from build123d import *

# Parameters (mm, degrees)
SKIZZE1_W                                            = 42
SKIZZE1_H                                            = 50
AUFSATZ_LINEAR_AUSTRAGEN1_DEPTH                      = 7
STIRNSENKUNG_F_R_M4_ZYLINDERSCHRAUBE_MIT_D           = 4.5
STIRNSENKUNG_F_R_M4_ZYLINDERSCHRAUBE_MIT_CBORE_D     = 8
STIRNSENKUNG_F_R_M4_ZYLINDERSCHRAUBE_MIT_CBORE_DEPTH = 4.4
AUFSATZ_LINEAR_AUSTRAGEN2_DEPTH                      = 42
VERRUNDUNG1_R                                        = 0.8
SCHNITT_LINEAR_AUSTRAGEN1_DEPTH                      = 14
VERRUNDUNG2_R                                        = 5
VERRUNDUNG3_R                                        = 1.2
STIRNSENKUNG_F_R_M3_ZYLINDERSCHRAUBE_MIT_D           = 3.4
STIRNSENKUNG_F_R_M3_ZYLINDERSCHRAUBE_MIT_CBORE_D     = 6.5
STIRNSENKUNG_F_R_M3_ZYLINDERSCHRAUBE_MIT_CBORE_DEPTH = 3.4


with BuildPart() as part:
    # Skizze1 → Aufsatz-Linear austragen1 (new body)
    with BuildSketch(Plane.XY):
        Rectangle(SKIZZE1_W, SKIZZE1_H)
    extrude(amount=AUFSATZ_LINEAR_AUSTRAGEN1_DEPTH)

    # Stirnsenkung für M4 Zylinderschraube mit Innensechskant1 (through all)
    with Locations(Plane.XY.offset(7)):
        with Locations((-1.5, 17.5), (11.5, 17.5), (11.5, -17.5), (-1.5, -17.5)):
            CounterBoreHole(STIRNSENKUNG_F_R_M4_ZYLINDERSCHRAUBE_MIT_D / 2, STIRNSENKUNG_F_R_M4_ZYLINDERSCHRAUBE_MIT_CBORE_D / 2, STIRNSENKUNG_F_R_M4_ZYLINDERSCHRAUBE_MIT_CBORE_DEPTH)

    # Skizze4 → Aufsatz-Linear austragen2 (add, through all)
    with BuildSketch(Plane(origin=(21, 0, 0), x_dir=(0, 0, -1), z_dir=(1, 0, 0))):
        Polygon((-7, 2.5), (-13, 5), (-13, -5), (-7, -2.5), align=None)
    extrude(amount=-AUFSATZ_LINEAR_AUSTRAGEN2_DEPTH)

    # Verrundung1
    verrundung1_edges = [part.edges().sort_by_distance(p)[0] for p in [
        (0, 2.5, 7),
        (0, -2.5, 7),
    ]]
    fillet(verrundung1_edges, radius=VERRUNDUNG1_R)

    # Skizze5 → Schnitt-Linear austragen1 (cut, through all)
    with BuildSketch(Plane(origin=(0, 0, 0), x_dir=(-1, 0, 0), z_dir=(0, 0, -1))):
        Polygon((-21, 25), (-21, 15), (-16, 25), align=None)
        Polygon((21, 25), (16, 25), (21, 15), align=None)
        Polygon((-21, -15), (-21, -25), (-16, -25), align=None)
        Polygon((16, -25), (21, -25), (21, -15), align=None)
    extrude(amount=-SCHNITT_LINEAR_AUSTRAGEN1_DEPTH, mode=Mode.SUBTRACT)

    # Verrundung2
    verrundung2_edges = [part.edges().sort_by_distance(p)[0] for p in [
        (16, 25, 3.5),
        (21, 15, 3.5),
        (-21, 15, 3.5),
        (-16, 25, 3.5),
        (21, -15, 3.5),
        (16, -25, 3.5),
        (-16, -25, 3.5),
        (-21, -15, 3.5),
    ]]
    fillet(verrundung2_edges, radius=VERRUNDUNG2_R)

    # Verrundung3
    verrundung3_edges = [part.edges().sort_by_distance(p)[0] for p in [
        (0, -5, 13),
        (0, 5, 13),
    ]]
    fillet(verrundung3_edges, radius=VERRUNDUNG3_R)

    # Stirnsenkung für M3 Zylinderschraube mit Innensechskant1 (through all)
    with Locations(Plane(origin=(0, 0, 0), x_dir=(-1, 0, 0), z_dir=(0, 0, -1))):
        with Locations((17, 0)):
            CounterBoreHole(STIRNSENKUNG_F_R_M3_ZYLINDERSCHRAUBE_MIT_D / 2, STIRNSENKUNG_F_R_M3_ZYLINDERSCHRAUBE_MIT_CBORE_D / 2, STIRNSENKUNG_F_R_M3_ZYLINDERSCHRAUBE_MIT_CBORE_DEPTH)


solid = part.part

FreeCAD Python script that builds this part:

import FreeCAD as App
import Part
import Sketcher
Q = App.Units.Quantity


def edges_at(feature, points):
    """Names of the edges that pass closest to the given points."""
    edges = feature.Shape.Edges
    near = lambda p: min(range(len(edges)), key=lambda i: edges[i].distToShape(Part.Vertex(*p))[0])
    return sorted({f"Edge{near(p) + 1}" for p in points})


def add_polygon(sketch, points):
    """Adds a closed chain of lines whose ends are joined by coincident constraints."""
    first, n = sketch.GeometryCount, len(points)
    for a, b in zip(points, points[1:] + points[:1]):
        sketch.addGeometry(Part.LineSegment(App.Vector(*a, 0), App.Vector(*b, 0)), False)
    for i in range(n):
        sketch.addConstraint(Sketcher.Constraint("Coincident", first + i, 2, first + (i + 1) % n, 1))

doc = App.newDocument("Part")
body = doc.addObject("PartDesign::Body", "Body")

sketch1 = body.newObject("Sketcher::SketchObject", "Sketch")
sketch1.AttachmentSupport = (doc.getObject("XY_Plane"), [""])
sketch1.MapMode = "FlatFace"
add_polygon(sketch1, [(-21, 25), (-21, -25), (21, -25), (21, 25)])
sketch1.addConstraint([
    Sketcher.Constraint("Vertical", 0),
    Sketcher.Constraint("Horizontal", 1),
    Sketcher.Constraint("Vertical", 2),
    Sketcher.Constraint("Horizontal", 3),
    Sketcher.Constraint("Symmetric", 0, 2, 2, 2, -1, 1),
    Sketcher.Constraint("DistanceX", 1, 1, 1, 2, Q("42 mm")),
    Sketcher.Constraint("DistanceY", 0, 2, 0, 1, Q("50 mm")),
])
pad1 = body.newObject("PartDesign::Pad", "Pad")
pad1.Profile = sketch1
pad1.Length = 7

sketch2 = body.newObject("Sketcher::SketchObject", "Sketch001")
sketch2.AttachmentSupport = (doc.getObject("XY_Plane"), [""])
sketch2.MapMode = "FlatFace"
sketch2.AttachmentOffset = App.Placement(App.Vector(0, 0, 7), App.Rotation())
sketch2.addGeometry([
    Part.Circle(App.Vector(-1.5, 17.5, 0), App.Vector(0, 0, 1), 2.2),
    Part.Circle(App.Vector(11.5, 17.5, 0), App.Vector(0, 0, 1), 2.2),
    Part.Circle(App.Vector(11.5, -17.5, 0), App.Vector(0, 0, 1), 2.2),
    Part.Circle(App.Vector(-1.5, -17.5, 0), App.Vector(0, 0, 1), 2.2),
], False)
sketch2.addConstraint([
    Sketcher.Constraint("Equal", 0, 1),
    Sketcher.Constraint("Equal", 1, 2),
    Sketcher.Constraint("Equal", 2, 3),
    Sketcher.Constraint("Symmetric", 1, 3, 2, 3, -1),
    Sketcher.Constraint("Symmetric", 0, 3, 3, 3, -1),
    Sketcher.Constraint("Horizontal", 0, 3, 1, 3),
    Sketcher.Constraint("Diameter", 0, Q("4.5 mm")),
    Sketcher.Constraint("DistanceX", 0, 3, 1, 3, Q("13 mm")),
    Sketcher.Constraint("DistanceY", 2, 3, 1, 3, Q("35 mm")),
    Sketcher.Constraint("DistanceX", 0, 3, -1, 1, Q("1.5 mm")),
])
doc.recompute()
hole = body.newObject("PartDesign::Hole", "Hole")
hole.Profile = sketch2
hole.ThreadType = "None"
hole.Diameter = 4.5
hole.DepthType = "ThroughAll"
hole.HoleCutType = "Counterbore"
hole.HoleCutDiameter = 8
hole.HoleCutDepth = 4.4

sketch3 = body.newObject("Sketcher::SketchObject", "Sketch002")
sketch3.AttachmentSupport = (doc.getObject("YZ_Plane"), [""])
sketch3.MapMode = "FlatFace"
sketch3.AttachmentOffset = App.Placement(App.Vector(0, 0, 21), App.Rotation())
add_polygon(sketch3, [(2, 7), (5, 13), (-5, 13), (-2, 7)])
sketch3.addConstraint([
    Sketcher.Constraint("Horizontal", 1),
    Sketcher.Constraint("Horizontal", 3),
    Sketcher.Constraint("Equal", 0, 2),
    Sketcher.Constraint("DistanceX", 1, 2, 1, 1, Q("10 mm")),
    Sketcher.Constraint("DistanceX", 3, 1, 3, 2, Q("5 mm")),
    Sketcher.Constraint("DistanceX", -1, 1, 0, 2, Q("5 mm")),
    Sketcher.Constraint("DistanceY", -1, 1, 0, 2, Q("13 mm")),
    Sketcher.Constraint("DistanceY", -1, 1, 2, 2, Q("7 mm")),
])
pad2 = body.newObject("PartDesign::Pad", "Pad001")
pad2.Profile = sketch3
pad2.Length = 42
pad2.Reversed = True
doc.recompute()

fillet = body.newObject("PartDesign::Fillet", "Fillet")
fillet.Base = (pad2, edges_at(pad2, [(0, 2.5, 7), (0, -2.5, 7)]))
fillet.Radius = 0.8

sketch4 = body.newObject("Sketcher::SketchObject", "Sketch003")
sketch4.AttachmentSupport = (doc.getObject("XY_Plane"), [""])
sketch4.MapMode = "FlatFace"
add_polygon(sketch4, [(21, 25), (21, 15), (16, 25)])
add_polygon(sketch4, [(-21, 25), (-16, 25), (-21, 15)])
add_polygon(sketch4, [(21, -15), (21, -25), (16, -25)])
add_polygon(sketch4, [(-16, -25), (-21, -25), (-21, -15)])
sketch4.addConstraint([
    Sketcher.Constraint("Vertical", 0),
    Sketcher.Constraint("Horizontal", 2),
    Sketcher.Constraint("Horizontal", 3),
    Sketcher.Constraint("Vertical", 5),
    Sketcher.Constraint("Vertical", 6),
    Sketcher.Constraint("Horizontal", 7),
    Sketcher.Constraint("Horizontal", 9),
    Sketcher.Constraint("Vertical", 10),
    Sketcher.Constraint("Symmetric", 5, 2, 6, 2, -1, 1),
    Sketcher.Constraint("Symmetric", 2, 2, 9, 2, -1, 1),
    Sketcher.Constraint("Symmetric", 1, 2, 3, 2, -2),
    Sketcher.Constraint("Symmetric", 0, 2, 4, 2, -2),
    Sketcher.Constraint("Parallel", 4, 8),
    Sketcher.Constraint("Parallel", 1, 11),
    Sketcher.Constraint("Horizontal", 8, 2, 10, 2),
    Sketcher.Constraint("Vertical", 1, 2, 7, 2),
    Sketcher.Constraint("DistanceX", 2, 1, 2, 2, Q("5 mm")),
    Sketcher.Constraint("DistanceY", 0, 2, 0, 1, Q("10 mm")),
    Sketcher.Constraint("DistanceX", -1, 1, 0, 2, Q("21 mm")),
    Sketcher.Constraint("DistanceY", -1, 1, 0, 2, Q("15 mm")),
])
pocket1 = body.newObject("PartDesign::Pocket", "Pocket")
pocket1.Profile = sketch4
pocket1.Type = "ThroughAll"
pocket1.Reversed = True
doc.recompute()

fillet2 = body.newObject("PartDesign::Fillet", "Fillet001")
fillet2.Base = (pocket1, edges_at(pocket1, [
    (16, 25, 3.5),
    (21, 15, 3.5),
    (-21, 15, 3.5),
    (-16, 25, 3.5),
    (21, -15, 3.5),
    (16, -25, 3.5),
    (-16, -25, 3.5),
    (-21, -15, 3.5),
]))
fillet2.Radius = 5
doc.recompute()

fillet3 = body.newObject("PartDesign::Fillet", "Fillet002")
fillet3.Base = (fillet2, edges_at(fillet2, [(0, -5, 13), (0, 5, 13)]))
fillet3.Radius = 1.2

sketch5 = body.newObject("Sketcher::SketchObject", "Sketch004")
sketch5.AttachmentSupport = (doc.getObject("XY_Plane"), [""])
sketch5.MapMode = "FlatFace"
sketch5.addGeometry(Part.Circle(App.Vector(-17, 0, 0), App.Vector(0, 0, 1), 1.7), False)
sketch5.addConstraint([
    Sketcher.Constraint("PointOnObject", 0, 3, -1),
    Sketcher.Constraint("Diameter", 0, Q("3.4 mm")),
    Sketcher.Constraint("DistanceX", 0, 3, -1, 1, Q("17 mm")),
])
doc.recompute()
hole2 = body.newObject("PartDesign::Hole", "Hole001")
hole2.Profile = sketch5
hole2.ThreadType = "None"
hole2.Diameter = 3.4
hole2.DepthType = "ThroughAll"
hole2.HoleCutType = "Counterbore"
hole2.HoleCutDiameter = 6.5
hole2.HoleCutDepth = 3.4
hole2.Reversed = True

doc.recompute()
